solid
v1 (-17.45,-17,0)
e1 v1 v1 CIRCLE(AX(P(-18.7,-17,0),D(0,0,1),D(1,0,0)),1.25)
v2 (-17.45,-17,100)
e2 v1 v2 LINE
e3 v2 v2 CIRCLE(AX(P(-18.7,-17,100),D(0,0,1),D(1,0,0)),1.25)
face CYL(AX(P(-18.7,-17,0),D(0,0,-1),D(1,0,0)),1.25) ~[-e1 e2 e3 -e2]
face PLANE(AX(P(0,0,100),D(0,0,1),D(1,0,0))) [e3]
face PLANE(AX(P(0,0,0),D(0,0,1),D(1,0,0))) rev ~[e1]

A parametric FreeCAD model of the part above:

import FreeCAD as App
import Part
import Sketcher

V = App.Vector
Q = App.Units.Quantity

doc = App.newDocument("Part")
body = doc.addObject("PartDesign::Body", "Body")

sketch1 = doc.addObject("Sketcher::SketchObject", "Sketch")
body.addObject(sketch1)
sketch1.AttachmentSupport = (doc.XY_Plane, [""])
sketch1.MapMode = "FlatFace"
sketch1.addGeometry(Part.Circle(V(-18.7, -17, 0), V(0, 0, 1), 1.2), False)
sketch1.addConstraint([
    Sketcher.Constraint("Diameter", 0, Q("2.5 mm")),
    Sketcher.Constraint("DistanceY", 0, 3, -1, 1, Q("17 mm")),
    Sketcher.Constraint("DistanceX", 0, 3, -1, 1, Q("18.7 mm")),
])
pad1 = doc.addObject("PartDesign::Pad", "Pad")
body.addObject(pad1)
pad1.Profile = sketch1
pad1.Length = 100

doc.recompute()
